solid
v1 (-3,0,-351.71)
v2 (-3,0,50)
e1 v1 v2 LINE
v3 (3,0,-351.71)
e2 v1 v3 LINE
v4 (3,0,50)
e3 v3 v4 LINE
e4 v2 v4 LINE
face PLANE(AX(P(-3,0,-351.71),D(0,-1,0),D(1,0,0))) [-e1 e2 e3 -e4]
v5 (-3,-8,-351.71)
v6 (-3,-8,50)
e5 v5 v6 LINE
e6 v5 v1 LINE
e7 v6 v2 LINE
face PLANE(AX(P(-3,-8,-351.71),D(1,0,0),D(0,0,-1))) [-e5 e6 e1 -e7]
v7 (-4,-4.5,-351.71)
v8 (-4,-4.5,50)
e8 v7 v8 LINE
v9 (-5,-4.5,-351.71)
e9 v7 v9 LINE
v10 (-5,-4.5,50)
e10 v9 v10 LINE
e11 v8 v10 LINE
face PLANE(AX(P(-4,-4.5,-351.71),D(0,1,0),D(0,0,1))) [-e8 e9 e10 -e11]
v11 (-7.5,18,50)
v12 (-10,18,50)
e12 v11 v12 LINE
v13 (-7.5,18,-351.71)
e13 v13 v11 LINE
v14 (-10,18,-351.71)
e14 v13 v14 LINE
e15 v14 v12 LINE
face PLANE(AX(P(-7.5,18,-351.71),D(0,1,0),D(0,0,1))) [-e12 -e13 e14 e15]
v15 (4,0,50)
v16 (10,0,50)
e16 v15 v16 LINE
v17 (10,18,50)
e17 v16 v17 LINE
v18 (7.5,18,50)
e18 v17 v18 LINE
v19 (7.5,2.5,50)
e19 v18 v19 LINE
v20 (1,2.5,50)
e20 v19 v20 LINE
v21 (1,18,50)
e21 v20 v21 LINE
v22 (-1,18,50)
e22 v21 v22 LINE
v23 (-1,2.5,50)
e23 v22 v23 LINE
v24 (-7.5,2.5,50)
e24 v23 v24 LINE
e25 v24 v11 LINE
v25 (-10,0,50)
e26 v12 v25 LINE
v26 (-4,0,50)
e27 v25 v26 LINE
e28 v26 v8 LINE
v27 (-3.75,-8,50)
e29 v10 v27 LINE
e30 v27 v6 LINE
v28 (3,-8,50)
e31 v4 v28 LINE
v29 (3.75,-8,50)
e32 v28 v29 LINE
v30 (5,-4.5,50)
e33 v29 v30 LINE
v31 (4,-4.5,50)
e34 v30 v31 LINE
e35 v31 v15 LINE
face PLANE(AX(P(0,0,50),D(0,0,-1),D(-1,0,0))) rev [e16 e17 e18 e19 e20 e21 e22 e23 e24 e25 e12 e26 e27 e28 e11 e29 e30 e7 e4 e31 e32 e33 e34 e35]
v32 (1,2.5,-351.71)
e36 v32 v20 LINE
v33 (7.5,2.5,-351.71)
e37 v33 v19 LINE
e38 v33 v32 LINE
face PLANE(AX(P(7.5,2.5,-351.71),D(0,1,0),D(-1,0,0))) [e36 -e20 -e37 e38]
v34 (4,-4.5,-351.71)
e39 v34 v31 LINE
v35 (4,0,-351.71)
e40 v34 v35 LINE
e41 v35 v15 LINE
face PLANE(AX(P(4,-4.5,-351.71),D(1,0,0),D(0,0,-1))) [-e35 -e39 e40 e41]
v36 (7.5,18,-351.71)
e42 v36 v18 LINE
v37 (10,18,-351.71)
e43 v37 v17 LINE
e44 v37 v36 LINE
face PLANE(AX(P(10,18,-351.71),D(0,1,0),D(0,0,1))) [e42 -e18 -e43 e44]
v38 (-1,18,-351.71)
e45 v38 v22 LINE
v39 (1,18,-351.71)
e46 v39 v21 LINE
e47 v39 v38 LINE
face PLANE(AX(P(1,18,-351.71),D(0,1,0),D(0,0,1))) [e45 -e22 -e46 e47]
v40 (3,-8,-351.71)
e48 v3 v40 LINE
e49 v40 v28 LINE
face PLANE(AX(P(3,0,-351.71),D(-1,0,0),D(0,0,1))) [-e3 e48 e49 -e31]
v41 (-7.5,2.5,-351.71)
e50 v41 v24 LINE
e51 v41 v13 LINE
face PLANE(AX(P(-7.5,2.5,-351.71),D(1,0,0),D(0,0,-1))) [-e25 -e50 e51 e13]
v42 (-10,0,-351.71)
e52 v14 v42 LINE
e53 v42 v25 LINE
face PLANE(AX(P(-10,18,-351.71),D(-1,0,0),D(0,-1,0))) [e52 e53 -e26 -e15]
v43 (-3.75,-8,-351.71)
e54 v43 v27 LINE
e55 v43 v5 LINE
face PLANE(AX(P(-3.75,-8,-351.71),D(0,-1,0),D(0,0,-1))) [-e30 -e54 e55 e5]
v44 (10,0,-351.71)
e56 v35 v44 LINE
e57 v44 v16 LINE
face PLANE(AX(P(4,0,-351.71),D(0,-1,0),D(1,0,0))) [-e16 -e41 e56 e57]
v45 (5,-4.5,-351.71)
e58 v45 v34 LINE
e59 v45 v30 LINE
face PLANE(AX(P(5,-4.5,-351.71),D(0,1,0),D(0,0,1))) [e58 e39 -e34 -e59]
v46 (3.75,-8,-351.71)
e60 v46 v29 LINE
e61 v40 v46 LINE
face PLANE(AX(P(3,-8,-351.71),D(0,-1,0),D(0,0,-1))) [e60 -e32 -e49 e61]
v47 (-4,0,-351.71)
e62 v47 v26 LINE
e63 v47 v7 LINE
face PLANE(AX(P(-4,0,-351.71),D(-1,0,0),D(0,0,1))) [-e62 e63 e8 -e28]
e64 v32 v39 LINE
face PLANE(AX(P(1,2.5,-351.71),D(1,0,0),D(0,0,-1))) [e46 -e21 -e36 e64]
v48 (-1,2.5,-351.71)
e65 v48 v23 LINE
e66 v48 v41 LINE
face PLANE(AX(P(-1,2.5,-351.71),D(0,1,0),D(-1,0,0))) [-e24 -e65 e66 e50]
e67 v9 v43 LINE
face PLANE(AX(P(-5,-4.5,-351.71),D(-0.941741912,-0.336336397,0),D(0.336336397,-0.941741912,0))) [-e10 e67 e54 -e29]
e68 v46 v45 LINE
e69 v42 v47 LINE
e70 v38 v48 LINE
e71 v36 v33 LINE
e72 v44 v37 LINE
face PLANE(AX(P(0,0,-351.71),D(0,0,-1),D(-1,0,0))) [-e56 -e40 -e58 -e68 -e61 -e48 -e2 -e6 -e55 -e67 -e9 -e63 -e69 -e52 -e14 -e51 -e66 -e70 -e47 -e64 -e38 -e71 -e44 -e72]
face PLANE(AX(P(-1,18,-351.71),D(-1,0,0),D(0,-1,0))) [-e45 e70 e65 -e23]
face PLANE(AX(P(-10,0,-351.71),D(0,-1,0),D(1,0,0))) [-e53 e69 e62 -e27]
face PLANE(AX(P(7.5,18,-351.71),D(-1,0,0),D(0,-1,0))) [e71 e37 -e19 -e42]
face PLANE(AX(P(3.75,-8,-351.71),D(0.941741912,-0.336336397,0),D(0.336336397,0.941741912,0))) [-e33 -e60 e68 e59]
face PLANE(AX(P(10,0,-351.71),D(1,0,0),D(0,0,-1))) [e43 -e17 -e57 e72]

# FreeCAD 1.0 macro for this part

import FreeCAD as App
import Part
import Sketcher

V = App.Vector
Q = App.Units.Quantity


def add_polygon(sketch, points):
    """Adds a closed chain of lines whose ends are joined by coincident constraints."""
    first, n = sketch.GeometryCount, len(points)
    for a, b in zip(points, points[1:] + points[:1]):
        sketch.addGeometry(Part.LineSegment(App.Vector(*a, 0), App.Vector(*b, 0)), False)
    for i in range(n):
        sketch.addConstraint(Sketcher.Constraint("Coincident", first + i, 2, first + (i + 1) % n, 1))

doc = App.newDocument("Part")
body = doc.addObject("PartDesign::Body", "Body")

# Sketch on XY plane
sketch1 = body.newObject("Sketcher::SketchObject", "Sketch")
sketch1.AttachmentSupport = (doc.getObject("XY_Plane"), [""])
sketch1.MapMode = "FlatFace"
sketch1.AttachmentOffset = App.Placement(V(0, 0, 50), App.Rotation())
add_polygon(sketch1, [(-1, 2.5), (-7.5, 2.5), (-7.5, 18), (-10, 18), (-10, 0), (-4, 0), (-4, -4.5), (-5, -4.5), (-3.75, -8), (-3, -8), (-3, 0), (3, 0), (3, -8), (3.75, -8), (5, -4.5), (4, -4.5), (4, 0), (10, 0), (10, 18), (7.5, 18), (7.5, 2.5), (1, 2.5), (1, 18), (-1, 18)])  # lines 0-23
sketch1.addConstraint(Sketcher.Constraint("Horizontal", 0))
sketch1.addConstraint(Sketcher.Constraint("Vertical", 1))
sketch1.addConstraint(Sketcher.Constraint("Horizontal", 2))
sketch1.addConstraint(Sketcher.Constraint("Vertical", 3))
sketch1.addConstraint(Sketcher.Constraint("Horizontal", 4))
sketch1.addConstraint(Sketcher.Constraint("Vertical", 5))
sketch1.addConstraint(Sketcher.Constraint("Horizontal", 6))
sketch1.addConstraint(Sketcher.Constraint("Horizontal", 8))
sketch1.addConstraint(Sketcher.Constraint("Vertical", 9))
sketch1.addConstraint(Sketcher.Constraint("Horizontal", 10))
sketch1.addConstraint(Sketcher.Constraint("Vertical", 11))
sketch1.addConstraint(Sketcher.Constraint("Horizontal", 12))
sketch1.addConstraint(Sketcher.Constraint("Horizontal", 14))
sketch1.addConstraint(Sketcher.Constraint("Vertical", 15))
sketch1.addConstraint(Sketcher.Constraint("Horizontal", 16))
sketch1.addConstraint(Sketcher.Constraint("Vertical", 17))
sketch1.addConstraint(Sketcher.Constraint("Horizontal", 18))
sketch1.addConstraint(Sketcher.Constraint("Vertical", 19))
sketch1.addConstraint(Sketcher.Constraint("Horizontal", 20))
sketch1.addConstraint(Sketcher.Constraint("Vertical", 21))
sketch1.addConstraint(Sketcher.Constraint("Horizontal", 22))
sketch1.addConstraint(Sketcher.Constraint("Vertical", 23))
sketch1.addConstraint(Sketcher.Constraint("Symmetric", 9, 2, 10, 2, -1, 1))
sketch1.addConstraint(Sketcher.Constraint("Symmetric", 4, 2, 15, 2, -1, 1))
sketch1.addConstraint(Sketcher.Constraint("Symmetric", 7, 2, 12, 2, -2))
sketch1.addConstraint(Sketcher.Constraint("Symmetric", 6, 2, 13, 2, -2))
sketch1.addConstraint(Sketcher.Constraint("Symmetric", 3, 2, 16, 2, -2))
sketch1.addConstraint(Sketcher.Constraint("Symmetric", 1, 2, 18, 2, -2))
sketch1.addConstraint(Sketcher.Constraint("Symmetric", 20, 2, 23, 2, -2))
sketch1.addConstraint(Sketcher.Constraint("Horizontal", 18, 2, 21, 2))
sketch1.addConstraint(Sketcher.Constraint("Equal", 4, 10))
sketch1.addConstraint(Sketcher.Constraint("DistanceX", 4, 1, 4, 2, Q("6 mm")))
sketch1.addConstraint(Sketcher.Constraint("DistanceX", 6, 2, 6, 1, Q("1 mm")))
sketch1.addConstraint(Sketcher.Constraint("DistanceX", 22, 2, 22, 1, Q("2 mm")))
sketch1.addConstraint(Sketcher.Constraint("DistanceY", 3, 2, 3, 1, Q("18 mm")))
sketch1.addConstraint(Sketcher.Constraint("DistanceY", 9, 1, 9, 2, Q("8 mm")))
sketch1.addConstraint(Sketcher.Constraint("DistanceX", 0, 2, 0, 1, Q("6.5 mm")))
sketch1.addConstraint(Sketcher.Constraint("DistanceX", 2, 2, 2, 1, Q("2.5 mm")))
sketch1.addConstraint(Sketcher.Constraint("DistanceY", 1, 1, 1, 2, Q("15.5 mm")))
sketch1.addConstraint(Sketcher.Constraint("DistanceY", 5, 2, 5, 1, Q("4.5 mm")))
sketch1.addConstraint(Sketcher.Constraint("DistanceX", 8, 1, 8, 2, Q("0.75 mm")))
pad1 = body.newObject("PartDesign::Pad", "Pad")
pad1.Profile = sketch1
pad1.Length = 401.71
pad1.Reversed = True

doc.recompute()
